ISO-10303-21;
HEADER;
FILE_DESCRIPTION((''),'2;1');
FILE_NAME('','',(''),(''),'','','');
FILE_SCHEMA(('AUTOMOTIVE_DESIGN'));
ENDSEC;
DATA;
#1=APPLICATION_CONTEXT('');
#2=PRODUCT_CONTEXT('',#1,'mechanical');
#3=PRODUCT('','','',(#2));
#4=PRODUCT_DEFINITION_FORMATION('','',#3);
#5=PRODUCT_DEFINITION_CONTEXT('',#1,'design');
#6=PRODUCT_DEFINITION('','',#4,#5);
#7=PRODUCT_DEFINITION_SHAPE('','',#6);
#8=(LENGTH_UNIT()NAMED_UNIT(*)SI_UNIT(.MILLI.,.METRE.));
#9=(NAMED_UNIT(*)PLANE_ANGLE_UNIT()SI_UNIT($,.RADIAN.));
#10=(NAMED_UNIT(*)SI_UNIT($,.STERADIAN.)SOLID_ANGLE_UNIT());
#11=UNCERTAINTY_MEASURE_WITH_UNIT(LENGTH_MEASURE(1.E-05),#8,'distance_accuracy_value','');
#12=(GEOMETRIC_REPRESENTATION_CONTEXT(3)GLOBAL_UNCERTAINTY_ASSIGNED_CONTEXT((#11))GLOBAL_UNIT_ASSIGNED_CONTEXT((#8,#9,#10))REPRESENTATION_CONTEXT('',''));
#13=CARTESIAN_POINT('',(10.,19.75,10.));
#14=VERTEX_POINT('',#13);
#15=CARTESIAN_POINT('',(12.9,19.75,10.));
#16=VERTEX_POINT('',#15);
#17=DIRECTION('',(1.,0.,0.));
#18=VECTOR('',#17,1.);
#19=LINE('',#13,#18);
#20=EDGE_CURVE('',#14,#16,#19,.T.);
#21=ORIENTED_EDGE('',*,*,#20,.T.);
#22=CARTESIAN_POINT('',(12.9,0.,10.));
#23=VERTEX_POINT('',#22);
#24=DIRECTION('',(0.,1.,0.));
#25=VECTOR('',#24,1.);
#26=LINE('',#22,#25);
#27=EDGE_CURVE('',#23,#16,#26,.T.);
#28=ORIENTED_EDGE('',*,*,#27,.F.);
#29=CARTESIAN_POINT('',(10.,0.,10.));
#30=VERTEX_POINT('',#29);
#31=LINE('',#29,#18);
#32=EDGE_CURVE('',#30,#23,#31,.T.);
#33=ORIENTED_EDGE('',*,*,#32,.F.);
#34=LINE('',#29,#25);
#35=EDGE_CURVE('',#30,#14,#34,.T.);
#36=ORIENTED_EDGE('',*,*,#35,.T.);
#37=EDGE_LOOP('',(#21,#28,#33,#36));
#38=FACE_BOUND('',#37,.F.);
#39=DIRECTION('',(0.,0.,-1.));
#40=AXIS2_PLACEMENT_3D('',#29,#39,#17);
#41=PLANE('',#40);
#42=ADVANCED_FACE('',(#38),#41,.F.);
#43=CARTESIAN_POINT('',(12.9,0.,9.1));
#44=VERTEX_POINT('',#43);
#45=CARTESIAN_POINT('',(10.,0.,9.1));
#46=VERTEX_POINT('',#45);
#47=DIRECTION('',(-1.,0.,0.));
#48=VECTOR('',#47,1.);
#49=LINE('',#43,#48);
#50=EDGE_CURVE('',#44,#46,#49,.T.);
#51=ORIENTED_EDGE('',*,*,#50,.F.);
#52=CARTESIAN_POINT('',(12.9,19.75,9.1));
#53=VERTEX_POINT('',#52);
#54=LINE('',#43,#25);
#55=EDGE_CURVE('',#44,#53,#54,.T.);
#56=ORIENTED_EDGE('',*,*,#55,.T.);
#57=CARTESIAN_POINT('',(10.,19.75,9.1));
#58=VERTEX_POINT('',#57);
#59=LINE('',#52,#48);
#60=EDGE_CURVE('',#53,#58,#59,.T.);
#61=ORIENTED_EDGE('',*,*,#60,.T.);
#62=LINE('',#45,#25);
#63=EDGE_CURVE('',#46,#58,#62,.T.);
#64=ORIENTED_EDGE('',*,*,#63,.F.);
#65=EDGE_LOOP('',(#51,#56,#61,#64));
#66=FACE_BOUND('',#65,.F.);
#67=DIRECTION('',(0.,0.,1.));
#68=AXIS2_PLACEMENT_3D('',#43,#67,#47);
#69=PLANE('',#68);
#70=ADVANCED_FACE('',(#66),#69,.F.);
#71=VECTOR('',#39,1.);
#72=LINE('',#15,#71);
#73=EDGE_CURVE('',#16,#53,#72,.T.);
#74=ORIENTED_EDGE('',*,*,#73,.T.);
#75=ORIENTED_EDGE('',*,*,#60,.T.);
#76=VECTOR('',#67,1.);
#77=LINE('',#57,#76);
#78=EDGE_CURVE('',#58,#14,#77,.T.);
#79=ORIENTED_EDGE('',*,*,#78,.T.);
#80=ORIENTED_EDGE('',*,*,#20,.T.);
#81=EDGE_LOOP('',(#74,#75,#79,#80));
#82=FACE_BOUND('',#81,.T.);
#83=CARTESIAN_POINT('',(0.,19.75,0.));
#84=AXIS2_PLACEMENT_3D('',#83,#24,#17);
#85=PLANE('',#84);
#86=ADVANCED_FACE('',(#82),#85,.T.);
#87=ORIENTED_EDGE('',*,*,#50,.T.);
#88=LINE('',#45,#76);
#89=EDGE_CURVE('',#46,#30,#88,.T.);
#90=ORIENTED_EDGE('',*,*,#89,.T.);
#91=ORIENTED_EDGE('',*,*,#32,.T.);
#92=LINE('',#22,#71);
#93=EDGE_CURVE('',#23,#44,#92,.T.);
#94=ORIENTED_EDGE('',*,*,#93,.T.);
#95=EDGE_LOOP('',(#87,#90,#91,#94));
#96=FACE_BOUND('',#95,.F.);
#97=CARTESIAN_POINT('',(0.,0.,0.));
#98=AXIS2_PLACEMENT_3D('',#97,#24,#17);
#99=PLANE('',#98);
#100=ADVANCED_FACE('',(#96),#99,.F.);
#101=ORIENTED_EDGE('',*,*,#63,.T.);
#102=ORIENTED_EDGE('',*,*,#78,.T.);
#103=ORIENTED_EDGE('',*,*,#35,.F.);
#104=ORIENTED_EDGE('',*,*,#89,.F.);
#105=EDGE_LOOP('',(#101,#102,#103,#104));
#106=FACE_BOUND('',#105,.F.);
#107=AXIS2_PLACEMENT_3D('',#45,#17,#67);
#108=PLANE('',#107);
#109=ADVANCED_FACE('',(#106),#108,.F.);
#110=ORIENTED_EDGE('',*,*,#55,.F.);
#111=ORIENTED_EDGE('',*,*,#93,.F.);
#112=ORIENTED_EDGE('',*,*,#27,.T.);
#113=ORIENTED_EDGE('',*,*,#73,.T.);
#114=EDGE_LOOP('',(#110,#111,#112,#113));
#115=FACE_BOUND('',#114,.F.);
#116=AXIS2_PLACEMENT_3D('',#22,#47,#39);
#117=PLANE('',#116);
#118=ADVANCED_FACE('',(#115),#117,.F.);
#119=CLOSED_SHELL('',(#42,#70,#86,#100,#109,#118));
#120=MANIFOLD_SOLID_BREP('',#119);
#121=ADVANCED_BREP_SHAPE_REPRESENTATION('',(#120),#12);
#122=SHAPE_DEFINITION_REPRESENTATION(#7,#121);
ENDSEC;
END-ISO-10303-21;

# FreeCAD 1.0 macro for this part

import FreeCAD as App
import Part
import Sketcher

V = App.Vector


def add_polygon(sketch, points):
    """Adds a closed chain of lines whose ends are joined by coincident constraints."""
    first, n = sketch.GeometryCount, len(points)
    for a, b in zip(points, points[1:] + points[:1]):
        sketch.addGeometry(Part.LineSegment(App.Vector(*a, 0), App.Vector(*b, 0)), False)
    for i in range(n):
        sketch.addConstraint(Sketcher.Constraint("Coincident", first + i, 2, first + (i + 1) % n, 1))

doc = App.newDocument("Part")
body = doc.addObject("PartDesign::Body", "Body")

sketch1 = doc.addObject("Sketcher::SketchObject", "Sketch")
body.addObject(sketch1)
sketch1.AttachmentSupport = (doc.XZ_Plane, [""])
sketch1.MapMode = "FlatFace"
add_polygon(sketch1, [(10, 9.1), (10, 10), (12.9, 10), (12.9, 9.1)])
sketch1.addConstraint(Sketcher.Constraint("Vertical", 0))
sketch1.addConstraint(Sketcher.Constraint("Horizontal", 1))
sketch1.addConstraint(Sketcher.Constraint("Vertical", 2))
sketch1.addConstraint(Sketcher.Constraint("Horizontal", 3))
sketch1.addConstraint(Sketcher.Constraint("DistanceX", 1, 1, 1, 2, 2.9))
sketch1.addConstraint(Sketcher.Constraint("DistanceY", 0, 1, 0, 2, 0.9))
sketch1.addConstraint(Sketcher.Constraint("DistanceX", -1, 1, 0, 2, 10.0))
sketch1.addConstraint(Sketcher.Constraint("DistanceY", -1, 1, 0, 2, 10.0))
pad1 = doc.addObject("PartDesign::Pad", "Pad")
body.addObject(pad1)
pad1.Profile = sketch1
pad1.Length = 19.75
pad1.Reversed = True

doc.recompute()
